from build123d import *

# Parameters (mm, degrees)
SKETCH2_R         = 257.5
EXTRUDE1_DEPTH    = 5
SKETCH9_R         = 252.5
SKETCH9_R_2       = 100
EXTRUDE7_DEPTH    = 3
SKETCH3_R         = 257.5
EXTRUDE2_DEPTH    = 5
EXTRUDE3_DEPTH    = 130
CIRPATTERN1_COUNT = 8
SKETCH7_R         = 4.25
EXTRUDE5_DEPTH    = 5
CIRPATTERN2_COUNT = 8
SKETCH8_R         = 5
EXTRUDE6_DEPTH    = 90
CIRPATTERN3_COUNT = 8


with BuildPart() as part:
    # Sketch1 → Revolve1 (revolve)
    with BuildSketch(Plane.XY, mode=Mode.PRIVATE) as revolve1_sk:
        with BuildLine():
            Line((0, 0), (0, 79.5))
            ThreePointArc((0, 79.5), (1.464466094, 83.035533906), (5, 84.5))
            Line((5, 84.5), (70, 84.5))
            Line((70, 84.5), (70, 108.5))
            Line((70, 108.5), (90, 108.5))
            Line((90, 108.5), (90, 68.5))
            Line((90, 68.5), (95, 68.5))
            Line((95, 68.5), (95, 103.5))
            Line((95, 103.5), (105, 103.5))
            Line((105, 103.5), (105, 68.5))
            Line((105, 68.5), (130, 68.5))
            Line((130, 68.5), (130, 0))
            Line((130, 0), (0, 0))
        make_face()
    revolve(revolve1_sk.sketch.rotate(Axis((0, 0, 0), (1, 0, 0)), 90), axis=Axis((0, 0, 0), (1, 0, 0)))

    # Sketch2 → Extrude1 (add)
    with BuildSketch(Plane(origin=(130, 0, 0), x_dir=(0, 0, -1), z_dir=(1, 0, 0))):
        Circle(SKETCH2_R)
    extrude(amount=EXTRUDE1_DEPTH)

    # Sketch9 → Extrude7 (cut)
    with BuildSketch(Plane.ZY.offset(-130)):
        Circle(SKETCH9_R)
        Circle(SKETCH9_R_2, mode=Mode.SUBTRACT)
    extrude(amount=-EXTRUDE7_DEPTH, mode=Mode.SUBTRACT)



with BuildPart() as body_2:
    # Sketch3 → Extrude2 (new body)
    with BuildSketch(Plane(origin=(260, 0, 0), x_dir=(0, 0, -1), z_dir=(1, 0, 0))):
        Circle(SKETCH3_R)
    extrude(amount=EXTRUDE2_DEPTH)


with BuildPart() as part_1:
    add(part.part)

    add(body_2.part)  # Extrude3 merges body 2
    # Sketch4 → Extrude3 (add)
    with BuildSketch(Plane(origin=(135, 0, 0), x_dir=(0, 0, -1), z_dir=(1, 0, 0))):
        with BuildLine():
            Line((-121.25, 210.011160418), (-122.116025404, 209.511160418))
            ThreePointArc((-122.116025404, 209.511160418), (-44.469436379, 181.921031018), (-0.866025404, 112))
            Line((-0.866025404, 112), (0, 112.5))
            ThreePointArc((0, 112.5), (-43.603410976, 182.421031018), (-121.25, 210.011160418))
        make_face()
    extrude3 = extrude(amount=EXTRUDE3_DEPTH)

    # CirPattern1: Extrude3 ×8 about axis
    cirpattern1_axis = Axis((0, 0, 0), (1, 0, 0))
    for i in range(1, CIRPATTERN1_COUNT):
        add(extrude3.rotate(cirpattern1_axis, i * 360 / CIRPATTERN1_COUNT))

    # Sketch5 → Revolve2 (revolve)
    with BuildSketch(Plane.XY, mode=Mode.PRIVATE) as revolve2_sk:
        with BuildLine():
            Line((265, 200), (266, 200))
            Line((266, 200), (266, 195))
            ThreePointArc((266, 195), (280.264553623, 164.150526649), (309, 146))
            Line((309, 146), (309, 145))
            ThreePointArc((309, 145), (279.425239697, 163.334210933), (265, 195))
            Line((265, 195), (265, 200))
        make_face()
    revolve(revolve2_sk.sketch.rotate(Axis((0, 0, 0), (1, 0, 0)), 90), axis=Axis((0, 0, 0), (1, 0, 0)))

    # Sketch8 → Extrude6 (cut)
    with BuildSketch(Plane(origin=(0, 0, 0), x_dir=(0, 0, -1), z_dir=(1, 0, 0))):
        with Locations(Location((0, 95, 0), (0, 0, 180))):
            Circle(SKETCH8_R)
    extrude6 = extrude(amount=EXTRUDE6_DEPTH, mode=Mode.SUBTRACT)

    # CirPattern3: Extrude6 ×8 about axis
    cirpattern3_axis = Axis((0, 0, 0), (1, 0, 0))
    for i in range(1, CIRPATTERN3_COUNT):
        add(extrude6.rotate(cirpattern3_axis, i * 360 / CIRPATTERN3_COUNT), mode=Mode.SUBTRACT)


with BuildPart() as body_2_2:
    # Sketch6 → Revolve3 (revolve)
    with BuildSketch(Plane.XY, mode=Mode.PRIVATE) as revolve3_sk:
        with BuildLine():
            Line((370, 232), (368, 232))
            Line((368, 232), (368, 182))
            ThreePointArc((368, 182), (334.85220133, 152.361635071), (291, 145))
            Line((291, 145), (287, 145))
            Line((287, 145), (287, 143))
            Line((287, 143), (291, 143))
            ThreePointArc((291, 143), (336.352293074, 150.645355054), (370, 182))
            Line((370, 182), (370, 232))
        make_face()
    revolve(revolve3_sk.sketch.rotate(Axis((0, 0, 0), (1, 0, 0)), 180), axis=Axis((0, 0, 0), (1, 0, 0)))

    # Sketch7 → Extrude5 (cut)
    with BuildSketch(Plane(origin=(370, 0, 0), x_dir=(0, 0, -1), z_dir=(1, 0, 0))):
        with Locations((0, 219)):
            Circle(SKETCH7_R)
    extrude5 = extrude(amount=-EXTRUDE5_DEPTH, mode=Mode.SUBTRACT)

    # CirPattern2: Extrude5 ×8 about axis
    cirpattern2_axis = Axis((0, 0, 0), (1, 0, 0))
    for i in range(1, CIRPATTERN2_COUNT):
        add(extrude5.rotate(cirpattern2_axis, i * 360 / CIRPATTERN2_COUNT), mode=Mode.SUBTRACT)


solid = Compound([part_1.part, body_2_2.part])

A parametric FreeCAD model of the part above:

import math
import FreeCAD as App
import Part
import Sketcher
Q = App.Units.Quantity

doc = App.newDocument("Part")
params = doc.addObject("Spreadsheet::Sheet", "Params")
for row, (alias, value) in enumerate([
    ("sketch1_radius", "5 mm"),
    ("sketch1_width", "130 mm"),
    ("sketch1_width2", "25 mm"),
    ("sketch1_width3", "10 mm"),
    ("sketch1_width4", "5 mm"),
    ("revolution_angle", "360 deg"),
    ("sketch2_diameter", "515 mm"),
    ("pad1_length", "5 mm"),
    ("sketch3_diameter", "505 mm"),
    ("sketch3_diameter2", "200 mm"),
    ("pocket1_length", "3 mm"),
    ("sketch4_diameter", "515 mm"),
    ("pad2_length", "5 mm"),
    ("sketch5_radius", "125 mm"),
    ("sketch5_length", "1 mm"),
    ("pad3_length", "130 mm"),
    ("sketch6_radius", "60 mm"),
    ("sketch6_width", "1 mm"),
    ("sketch6_height", "5 mm"),
    ("revolution2_angle", "360 deg"),
    ("sketch7_diameter", "10 mm"),
    ("pocket2_length", "90 mm"),
    ("sketch8_radius", "80 mm"),
    ("sketch8_width", "2 mm"),
    ("sketch8_width2", "4 mm"),
    ("sketch8_height", "50 mm"),
    ("revolution3_angle", "360 deg"),
    ("sketch9_diameter", "8.5 mm"),
    ("pocket3_length", "5 mm"),
], start=1):
    params.set(f"A{row}", alias)
    params.set(f"B{row}", "=" + value)
    params.setAlias(f"B{row}", alias)

body = doc.addObject("PartDesign::Body", "Body")

# Sketch on XY plane
sketch1 = body.newObject("Sketcher::SketchObject", "Sketch")
sketch1.AttachmentSupport = (doc.getObject("XY_Plane"), [""])
sketch1.MapMode = "FlatFace"
sketch1.addGeometry(Part.LineSegment(App.Vector(0, 80, 0), App.Vector(0, 0, 0)), False)
sketch1.addGeometry(Part.LineSegment(App.Vector(0, 0, 0), App.Vector(130, 0, 0)), False)
sketch1.addGeometry(Part.LineSegment(App.Vector(130, 0, 0), App.Vector(130, 68, 0)), False)
sketch1.addGeometry(Part.LineSegment(App.Vector(130, 68, 0), App.Vector(105, 68, 0)), False)
sketch1.addGeometry(Part.LineSegment(App.Vector(105, 68, 0), App.Vector(105, 104, 0)), False)
sketch1.addGeometry(Part.LineSegment(App.Vector(105, 104, 0), App.Vector(95, 104, 0)), False)
sketch1.addGeometry(Part.LineSegment(App.Vector(95, 104, 0), App.Vector(95, 68, 0)), False)
sketch1.addGeometry(Part.LineSegment(App.Vector(95, 68, 0), App.Vector(90, 68, 0)), False)
sketch1.addGeometry(Part.LineSegment(App.Vector(90, 68, 0), App.Vector(90, 108, 0)), False)
sketch1.addGeometry(Part.LineSegment(App.Vector(90, 108, 0), App.Vector(70, 108, 0)), False)
sketch1.addGeometry(Part.LineSegment(App.Vector(70, 108, 0), App.Vector(70, 84, 0)), False)
sketch1.addGeometry(Part.LineSegment(App.Vector(70, 84, 0), App.Vector(5, 84, 0)), False)
sketch1.addGeometry(Part.ArcOfCircle(Part.Circle(App.Vector(5, 80, 0), App.Vector(0, 0, 1), 5), math.radians(90), math.radians(180)), False)
sketch1.addConstraint(Sketcher.Constraint("Coincident", 0, 2, 1, 1))
sketch1.addConstraint(Sketcher.Constraint("Coincident", 1, 2, 2, 1))
sketch1.addConstraint(Sketcher.Constraint("Coincident", 2, 2, 3, 1))
sketch1.addConstraint(Sketcher.Constraint("Coincident", 3, 2, 4, 1))
sketch1.addConstraint(Sketcher.Constraint("Coincident", 4, 2, 5, 1))
sketch1.addConstraint(Sketcher.Constraint("Coincident", 5, 2, 6, 1))
sketch1.addConstraint(Sketcher.Constraint("Coincident", 6, 2, 7, 1))
sketch1.addConstraint(Sketcher.Constraint("Coincident", 7, 2, 8, 1))
sketch1.addConstraint(Sketcher.Constraint("Coincident", 8, 2, 9, 1))
sketch1.addConstraint(Sketcher.Constraint("Coincident", 9, 2, 10, 1))
sketch1.addConstraint(Sketcher.Constraint("Coincident", 10, 2, 11, 1))
sketch1.addConstraint(Sketcher.Constraint("Tangent", 11, 2, 12, 1))
sketch1.addConstraint(Sketcher.Constraint("Tangent", 12, 2, 0, 1))
sketch1.addConstraint(Sketcher.Constraint("Vertical", 0))
sketch1.addConstraint(Sketcher.Constraint("Horizontal", 1))
sketch1.addConstraint(Sketcher.Constraint("Vertical", 2))
sketch1.addConstraint(Sketcher.Constraint("Horizontal", 3))
sketch1.addConstraint(Sketcher.Constraint("Vertical", 4))
sketch1.addConstraint(Sketcher.Constraint("Horizontal", 5))
sketch1.addConstraint(Sketcher.Constraint("Vertical", 6))
sketch1.addConstraint(Sketcher.Constraint("Horizontal", 7))
sketch1.addConstraint(Sketcher.Constraint("Vertical", 8))
sketch1.addConstraint(Sketcher.Constraint("Horizontal", 9))
sketch1.addConstraint(Sketcher.Constraint("Vertical", 10))
sketch1.addConstraint(Sketcher.Constraint("Horizontal", 11))
sketch1.addConstraint(Sketcher.Constraint("Coincident", 0, 2, -1, 1))
sketch1.addConstraint(Sketcher.Constraint("Horizontal", 3, 2, 6, 2))
sketch1.addConstraint(Sketcher.Constraint("Radius", 12, Q("5 mm")))
sketch1.addConstraint(Sketcher.Constraint("DistanceX", 1, 1, 1, 2, Q("130 mm")))
sketch1.addConstraint(Sketcher.Constraint("DistanceX", 3, 2, 3, 1, Q("25 mm")))
sketch1.addConstraint(Sketcher.Constraint("DistanceX", 5, 2, 5, 1, Q("10 mm")))
sketch1.addConstraint(Sketcher.Constraint("DistanceX", 7, 2, 7, 1, Q("5 mm")))
sketch1.addConstraint(Sketcher.Constraint("DistanceX", 9, 2, 9, 1, Q("20 mm")))
sketch1.addConstraint(Sketcher.Constraint("DistanceY", 4, 1, 4, 2, Q("35 mm")))
sketch1.addConstraint(Sketcher.Constraint("DistanceY", 8, 1, 8, 2, Q("40 mm")))
sketch1.addConstraint(Sketcher.Constraint("DistanceY", 10, 2, 10, 1, Q("24 mm")))
sketch1.addConstraint(Sketcher.Constraint("DistanceY", 0, 2, 0, 1, Q("79.5 mm")))
sketch1.setExpression("Constraints[27]", "Params.sketch1_radius")
sketch1.setExpression("Constraints[28]", "Params.sketch1_width")
sketch1.setExpression("Constraints[29]", "Params.sketch1_width2")
sketch1.setExpression("Constraints[30]", "Params.sketch1_width3")
sketch1.setExpression("Constraints[31]", "Params.sketch1_width4")
revolution = body.newObject("PartDesign::Revolution", "Revolution")
revolution.Profile = sketch1
revolution.ReferenceAxis = (sketch1, ["H_Axis"])
revolution.setExpression("Angle", "Params.revolution_angle")

# Sketch on YZ plane
sketch2 = body.newObject("Sketcher::SketchObject", "Sketch001")
sketch2.AttachmentSupport = (doc.getObject("YZ_Plane"), [""])
sketch2.MapMode = "FlatFace"
sketch2.AttachmentOffset = App.Placement(App.Vector(0, 0, 130), App.Rotation())
sketch2.addGeometry(Part.Circle(App.Vector(0, 0, 0), App.Vector(0, 0, 1), 258), False)
sketch2.addConstraint(Sketcher.Constraint("Coincident", 0, 3, -1, 1))
sketch2.addConstraint(Sketcher.Constraint("Diameter", 0, Q("515 mm")))
sketch2.setExpression("Constraints[1]", "Params.sketch2_diameter")
pad1 = body.newObject("PartDesign::Pad", "Pad")
pad1.Profile = sketch2
pad1.setExpression("Length", "Params.pad1_length")

# Sketch on YZ plane
sketch3 = body.newObject("Sketcher::SketchObject", "Sketch002")
sketch3.AttachmentSupport = (doc.getObject("YZ_Plane"), [""])
sketch3.MapMode = "FlatFace"
sketch3.AttachmentOffset = App.Placement(App.Vector(0, 0, 130), App.Rotation())
sketch3.addGeometry(Part.Circle(App.Vector(0, 0, 0), App.Vector(0, 0, 1), 252), False)
sketch3.addGeometry(Part.Circle(App.Vector(0, 0, 0), App.Vector(0, 0, 1), 100), False)
sketch3.addConstraint(Sketcher.Constraint("Coincident", 0, 3, -1, 1))
sketch3.addConstraint(Sketcher.Constraint("Coincident", 1, 3, -1, 1))
sketch3.addConstraint(Sketcher.Constraint("Diameter", 0, Q("505 mm")))
sketch3.addConstraint(Sketcher.Constraint("Diameter", 1, Q("200 mm")))
sketch3.setExpression("Constraints[2]", "Params.sketch3_diameter")
sketch3.setExpression("Constraints[3]", "Params.sketch3_diameter2")
pocket1 = body.newObject("PartDesign::Pocket", "Pocket")
pocket1.Profile = sketch3
pocket1.setExpression("Length", "Params.pocket1_length")
pocket1.Reversed = True
body2 = doc.addObject("PartDesign::Body", "Body001")

# Sketch on YZ plane
sketch4 = body2.newObject("Sketcher::SketchObject", "Sketch003")
sketch4.AttachmentSupport = (doc.getObject("YZ_Plane001"), [""])
sketch4.MapMode = "FlatFace"
sketch4.AttachmentOffset = App.Placement(App.Vector(0, 0, 260), App.Rotation())
sketch4.addGeometry(Part.Circle(App.Vector(0, 0, 0), App.Vector(0, 0, 1), 258), False)
sketch4.addConstraint(Sketcher.Constraint("Coincident", 0, 3, -1, 1))
sketch4.addConstraint(Sketcher.Constraint("Diameter", 0, Q("515 mm")))
sketch4.setExpression("Constraints[1]", "Params.sketch4_diameter")
pad2 = body2.newObject("PartDesign::Pad", "Pad001")
pad2.Profile = sketch4
pad2.setExpression("Length", "Params.pad2_length")
body.AllowCompound = True
doc.recompute()

boolean = body.newObject("PartDesign::Boolean", "Boolean")
boolean.Type = "Fuse"
boolean.addObjects([body2])

# Sketch on YZ plane
sketch5 = body.newObject("Sketcher::SketchObject", "Sketch004")
sketch5.AttachmentSupport = (doc.getObject("YZ_Plane"), [""])
sketch5.MapMode = "FlatFace"
sketch5.AttachmentOffset = App.Placement(App.Vector(0, 0, 135), App.Rotation())
sketch5.addGeometry(Part.LineSegment(App.Vector(210, 121.2, 0), App.Vector(209.5, 122.1, 0)), False)
sketch5.addGeometry(Part.ArcOfCircle(Part.Circle(App.Vector(84.5, 122.8, 0), App.Vector(0, 0, 1), 125), math.radians(-77), math.radians(0)), False)
sketch5.addGeometry(Part.LineSegment(App.Vector(112, 0.9, 0), App.Vector(112.5, 0, 0)), False)
sketch5.addGeometry(Part.ArcOfCircle(Part.Circle(App.Vector(85, 121.9, 0), App.Vector(0, 0, 1), 125), math.radians(-77), math.radians(0)), False)
sketch5.addConstraint(Sketcher.Constraint("Coincident", 0, 2, 1, 2))
sketch5.addConstraint(Sketcher.Constraint("Coincident", 1, 1, 2, 1))
sketch5.addConstraint(Sketcher.Constraint("Coincident", 2, 2, 3, 1))
sketch5.addConstraint(Sketcher.Constraint("Coincident", 3, 2, 0, 1))
sketch5.addConstraint(Sketcher.Constraint("Equal", 1, 3))
sketch5.addConstraint(Sketcher.Constraint("PointOnObject", 2, 2, -1))
sketch5.addConstraint(Sketcher.Constraint("Parallel", 0, 2))
sketch5.addConstraint(Sketcher.Constraint("Equal", 0, 2))
sketch5.addConstraint(Sketcher.Constraint("Radius", 1, Q("125 mm")))
sketch5.addConstraint(Sketcher.Constraint("Angle", 0, Q("120 deg")))
sketch5.addConstraint(Sketcher.Constraint("Distance", 0, Q("1 mm")))
sketch5.addConstraint(Sketcher.Constraint("DistanceX", -1, 1, 1, 1, Q("112 mm")))
sketch5.addConstraint(Sketcher.Constraint("DistanceY", -1, 1, 3, 2, Q("121.25 mm")))
sketch5.addConstraint(Sketcher.Constraint("DistanceY", -1, 1, 3, 3, Q("121.94043 mm")))
sketch5.setExpression("Constraints[8]", "Params.sketch5_radius")
sketch5.setExpression("Constraints[10]", "Params.sketch5_length")
pad3 = body.newObject("PartDesign::Pad", "Pad002")
pad3.Profile = sketch5
pad3.setExpression("Length", "Params.pad3_length")
doc.recompute()

polarpattern = body.newObject("PartDesign::PolarPattern", "PolarPattern")
polarpattern.Originals = [pad3]
polarpattern.Axis = (doc.getObject("X_Axis"), [""])
polarpattern.Angle = 360
polarpattern.Occurrences = 8
body.Tip = polarpattern

# Sketch on XY plane
sketch6 = body.newObject("Sketcher::SketchObject", "Sketch005")
sketch6.AttachmentSupport = (doc.getObject("XY_Plane"), [""])
sketch6.MapMode = "FlatFace"
sketch6.addGeometry(Part.LineSegment(App.Vector(266, 200, 0), App.Vector(265, 200, 0)), False)
sketch6.addGeometry(Part.LineSegment(App.Vector(265, 200, 0), App.Vector(265, 195, 0)), False)
sketch6.addGeometry(Part.ArcOfCircle(Part.Circle(App.Vector(324.5, 203, 0), App.Vector(0, 0, 1), 60), math.radians(-172), math.radians(-105)), False)
sketch6.addGeometry(Part.LineSegment(App.Vector(309, 145, 0), App.Vector(309, 146, 0)), False)
sketch6.addGeometry(Part.ArcOfCircle(Part.Circle(App.Vector(325.4, 203.7, 0), App.Vector(0, 0, 1), 60), math.radians(-172), math.radians(-106)), False)
sketch6.addGeometry(Part.LineSegment(App.Vector(266, 195, 0), App.Vector(266, 200, 0)), False)
sketch6.addConstraint(Sketcher.Constraint("Coincident", 0, 2, 1, 1))
sketch6.addConstraint(Sketcher.Constraint("Coincident", 1, 2, 2, 1))
sketch6.addConstraint(Sketcher.Constraint("Coincident", 2, 2, 3, 1))
sketch6.addConstraint(Sketcher.Constraint("Coincident", 3, 2, 4, 2))
sketch6.addConstraint(Sketcher.Constraint("Coincident", 4, 1, 5, 1))
sketch6.addConstraint(Sketcher.Constraint("Coincident", 5, 2, 0, 1))
sketch6.addConstraint(Sketcher.Constraint("Horizontal", 0))
sketch6.addConstraint(Sketcher.Constraint("Vertical", 1))
sketch6.addConstraint(Sketcher.Constraint("Vertical", 3))
sketch6.addConstraint(Sketcher.Constraint("Vertical", 5))
sketch6.addConstraint(Sketcher.Constraint("Equal", 2, 4))
sketch6.addConstraint(Sketcher.Constraint("Horizontal", 1, 2, 4, 1))
sketch6.addConstraint(Sketcher.Constraint("Equal", 0, 3))
sketch6.addConstraint(Sketcher.Constraint("Radius", 2, Q("60 mm")))
sketch6.addConstraint(Sketcher.Constraint("DistanceX", 0, 2, 0, 1, Q("1 mm")))
sketch6.addConstraint(Sketcher.Constraint("DistanceY", 1, 2, 1, 1, Q("5 mm")))
sketch6.addConstraint(Sketcher.Constraint("DistanceX", -1, 1, 0, 2, Q("265 mm")))
sketch6.addConstraint(Sketcher.Constraint("DistanceY", -1, 1, 0, 2, Q("200 mm")))
sketch6.addConstraint(Sketcher.Constraint("DistanceX", -1, 1, 2, 2, Q("309 mm")))
sketch6.addConstraint(Sketcher.Constraint("DistanceY", -1, 1, 2, 2, Q("145 mm")))
sketch6.setExpression("Constraints[13]", "Params.sketch6_radius")
sketch6.setExpression("Constraints[14]", "Params.sketch6_width")
sketch6.setExpression("Constraints[15]", "Params.sketch6_height")
revolution2 = body.newObject("PartDesign::Revolution", "Revolution001")
revolution2.Profile = sketch6
revolution2.ReferenceAxis = (sketch6, ["H_Axis"])
revolution2.setExpression("Angle", "Params.revolution2_angle")

# Sketch on YZ plane
sketch7 = body.newObject("Sketcher::SketchObject", "Sketch006")
sketch7.AttachmentSupport = (doc.getObject("YZ_Plane"), [""])
sketch7.MapMode = "FlatFace"
sketch7.addGeometry(Part.Circle(App.Vector(95, 0, 0), App.Vector(0, 0, 1), 5), False)
sketch7.addConstraint(Sketcher.Constraint("PointOnObject", 0, 3, -1))
sketch7.addConstraint(Sketcher.Constraint("Diameter", 0, Q("10 mm")))
sketch7.addConstraint(Sketcher.Constraint("DistanceX", -1, 1, 0, 3, Q("95 mm")))
sketch7.setExpression("Constraints[1]", "Params.sketch7_diameter")
pocket2 = body.newObject("PartDesign::Pocket", "Pocket001")
pocket2.Profile = sketch7
pocket2.setExpression("Length", "Params.pocket2_length")
pocket2.Reversed = True
doc.recompute()

polarpattern2 = body.newObject("PartDesign::PolarPattern", "PolarPattern001")
polarpattern2.Originals = [pocket2]
polarpattern2.Axis = (doc.getObject("X_Axis"), [""])
polarpattern2.Angle = 360
polarpattern2.Occurrences = 8
body.Tip = polarpattern2
body3 = doc.addObject("PartDesign::Body", "Body002")

# Sketch on XY plane
sketch8 = body3.newObject("Sketcher::SketchObject", "Sketch007")
sketch8.AttachmentSupport = (doc.getObject("XY_Plane002"), [""])
sketch8.MapMode = "FlatFace"
sketch8.addGeometry(Part.LineSegment(App.Vector(370, 232, 0), App.Vector(368, 232, 0)), False)
sketch8.addGeometry(Part.LineSegment(App.Vector(368, 232, 0), App.Vector(368, 182, 0)), False)
sketch8.addGeometry(Part.ArcOfCircle(Part.Circle(App.Vector(300.2, 224.5, 0), App.Vector(0, 0, 1), 80), math.radians(-97), math.radians(-32)), False)
sketch8.addGeometry(Part.LineSegment(App.Vector(291, 145, 0), App.Vector(287, 145, 0)), False)
sketch8.addGeometry(Part.LineSegment(App.Vector(287, 145, 0), App.Vector(287, 143, 0)), False)
sketch8.addGeometry(Part.LineSegment(App.Vector(287, 143, 0), App.Vector(291, 143, 0)), False)
sketch8.addGeometry(Part.ArcOfCircle(Part.Circle(App.Vector(300.9, 222.4, 0), App.Vector(0, 0, 1), 80), math.radians(-97), math.radians(-30)), False)
sketch8.addGeometry(Part.LineSegment(App.Vector(370, 182, 0), App.Vector(370, 232, 0)), False)
sketch8.addConstraint(Sketcher.Constraint("Coincident", 0, 2, 1, 1))
sketch8.addConstraint(Sketcher.Constraint("Coincident", 1, 2, 2, 2))
sketch8.addConstraint(Sketcher.Constraint("Coincident", 2, 1, 3, 1))
sketch8.addConstraint(Sketcher.Constraint("Coincident", 3, 2, 4, 1))
sketch8.addConstraint(Sketcher.Constraint("Coincident", 4, 2, 5, 1))
sketch8.addConstraint(Sketcher.Constraint("Coincident", 5, 2, 6, 1))
sketch8.addConstraint(Sketcher.Constraint("Coincident", 6, 2, 7, 1))
sketch8.addConstraint(Sketcher.Constraint("Coincident", 7, 2, 0, 1))
sketch8.addConstraint(Sketcher.Constraint("Horizontal", 0))
sketch8.addConstraint(Sketcher.Constraint("Vertical", 1))
sketch8.addConstraint(Sketcher.Constraint("Horizontal", 3))
sketch8.addConstraint(Sketcher.Constraint("Vertical", 4))
sketch8.addConstraint(Sketcher.Constraint("Horizontal", 5))
sketch8.addConstraint(Sketcher.Constraint("Vertical", 7))
sketch8.addConstraint(Sketcher.Constraint("Equal", 2, 6))
sketch8.addConstraint(Sketcher.Constraint("Horizontal", 1, 2, 6, 2))
sketch8.addConstraint(Sketcher.Constraint("Vertical", 2, 1, 5, 2))
sketch8.addConstraint(Sketcher.Constraint("Equal", 0, 4))
sketch8.addConstraint(Sketcher.Constraint("Radius", 2, Q("80 mm")))
sketch8.addConstraint(Sketcher.Constraint("DistanceX", 0, 2, 0, 1, Q("2 mm")))
sketch8.addConstraint(Sketcher.Constraint("DistanceX", 3, 2, 3, 1, Q("4 mm")))
sketch8.addConstraint(Sketcher.Constraint("DistanceY", 1, 2, 1, 1, Q("50 mm")))
sketch8.addConstraint(Sketcher.Constraint("DistanceX", -1, 1, 0, 2, Q("368 mm")))
sketch8.addConstraint(Sketcher.Constraint("DistanceY", -1, 1, 0, 2, Q("232 mm")))
sketch8.addConstraint(Sketcher.Constraint("DistanceX", -1, 1, 2, 1, Q("291 mm")))
sketch8.addConstraint(Sketcher.Constraint("DistanceY", -1, 1, 2, 1, Q("145 mm")))
sketch8.setExpression("Constraints[18]", "Params.sketch8_radius")
sketch8.setExpression("Constraints[19]", "Params.sketch8_width")
sketch8.setExpression("Constraints[20]", "Params.sketch8_width2")
sketch8.setExpression("Constraints[21]", "Params.sketch8_height")
revolution3 = body3.newObject("PartDesign::Revolution", "Revolution002")
revolution3.Profile = sketch8
revolution3.ReferenceAxis = (sketch8, ["H_Axis"])
revolution3.setExpression("Angle", "Params.revolution3_angle")

# Sketch on YZ plane
sketch9 = body3.newObject("Sketcher::SketchObject", "Sketch008")
sketch9.AttachmentSupport = (doc.getObject("YZ_Plane002"), [""])
sketch9.MapMode = "FlatFace"
sketch9.AttachmentOffset = App.Placement(App.Vector(0, 0, 370), App.Rotation())
sketch9.addGeometry(Part.Circle(App.Vector(219, 0, 0), App.Vector(0, 0, 1), 4.2), False)
sketch9.addConstraint(Sketcher.Constraint("PointOnObject", 0, 3, -1))
sketch9.addConstraint(Sketcher.Constraint("Diameter", 0, Q("8.5 mm")))
sketch9.addConstraint(Sketcher.Constraint("DistanceX", -1, 1, 0, 3, Q("219 mm")))
sketch9.setExpression("Constraints[1]", "Params.sketch9_diameter")
pocket3 = body3.newObject("PartDesign::Pocket", "Pocket002")
pocket3.Profile = sketch9
pocket3.setExpression("Length", "Params.pocket3_length")
doc.recompute()

polarpattern3 = body3.newObject("PartDesign::PolarPattern", "PolarPattern002")
polarpattern3.Originals = [pocket3]
polarpattern3.Axis = (doc.getObject("X_Axis002"), [""])
polarpattern3.Angle = 360
polarpattern3.Occurrences = 8
body3.Tip = polarpattern3

doc.recompute()
